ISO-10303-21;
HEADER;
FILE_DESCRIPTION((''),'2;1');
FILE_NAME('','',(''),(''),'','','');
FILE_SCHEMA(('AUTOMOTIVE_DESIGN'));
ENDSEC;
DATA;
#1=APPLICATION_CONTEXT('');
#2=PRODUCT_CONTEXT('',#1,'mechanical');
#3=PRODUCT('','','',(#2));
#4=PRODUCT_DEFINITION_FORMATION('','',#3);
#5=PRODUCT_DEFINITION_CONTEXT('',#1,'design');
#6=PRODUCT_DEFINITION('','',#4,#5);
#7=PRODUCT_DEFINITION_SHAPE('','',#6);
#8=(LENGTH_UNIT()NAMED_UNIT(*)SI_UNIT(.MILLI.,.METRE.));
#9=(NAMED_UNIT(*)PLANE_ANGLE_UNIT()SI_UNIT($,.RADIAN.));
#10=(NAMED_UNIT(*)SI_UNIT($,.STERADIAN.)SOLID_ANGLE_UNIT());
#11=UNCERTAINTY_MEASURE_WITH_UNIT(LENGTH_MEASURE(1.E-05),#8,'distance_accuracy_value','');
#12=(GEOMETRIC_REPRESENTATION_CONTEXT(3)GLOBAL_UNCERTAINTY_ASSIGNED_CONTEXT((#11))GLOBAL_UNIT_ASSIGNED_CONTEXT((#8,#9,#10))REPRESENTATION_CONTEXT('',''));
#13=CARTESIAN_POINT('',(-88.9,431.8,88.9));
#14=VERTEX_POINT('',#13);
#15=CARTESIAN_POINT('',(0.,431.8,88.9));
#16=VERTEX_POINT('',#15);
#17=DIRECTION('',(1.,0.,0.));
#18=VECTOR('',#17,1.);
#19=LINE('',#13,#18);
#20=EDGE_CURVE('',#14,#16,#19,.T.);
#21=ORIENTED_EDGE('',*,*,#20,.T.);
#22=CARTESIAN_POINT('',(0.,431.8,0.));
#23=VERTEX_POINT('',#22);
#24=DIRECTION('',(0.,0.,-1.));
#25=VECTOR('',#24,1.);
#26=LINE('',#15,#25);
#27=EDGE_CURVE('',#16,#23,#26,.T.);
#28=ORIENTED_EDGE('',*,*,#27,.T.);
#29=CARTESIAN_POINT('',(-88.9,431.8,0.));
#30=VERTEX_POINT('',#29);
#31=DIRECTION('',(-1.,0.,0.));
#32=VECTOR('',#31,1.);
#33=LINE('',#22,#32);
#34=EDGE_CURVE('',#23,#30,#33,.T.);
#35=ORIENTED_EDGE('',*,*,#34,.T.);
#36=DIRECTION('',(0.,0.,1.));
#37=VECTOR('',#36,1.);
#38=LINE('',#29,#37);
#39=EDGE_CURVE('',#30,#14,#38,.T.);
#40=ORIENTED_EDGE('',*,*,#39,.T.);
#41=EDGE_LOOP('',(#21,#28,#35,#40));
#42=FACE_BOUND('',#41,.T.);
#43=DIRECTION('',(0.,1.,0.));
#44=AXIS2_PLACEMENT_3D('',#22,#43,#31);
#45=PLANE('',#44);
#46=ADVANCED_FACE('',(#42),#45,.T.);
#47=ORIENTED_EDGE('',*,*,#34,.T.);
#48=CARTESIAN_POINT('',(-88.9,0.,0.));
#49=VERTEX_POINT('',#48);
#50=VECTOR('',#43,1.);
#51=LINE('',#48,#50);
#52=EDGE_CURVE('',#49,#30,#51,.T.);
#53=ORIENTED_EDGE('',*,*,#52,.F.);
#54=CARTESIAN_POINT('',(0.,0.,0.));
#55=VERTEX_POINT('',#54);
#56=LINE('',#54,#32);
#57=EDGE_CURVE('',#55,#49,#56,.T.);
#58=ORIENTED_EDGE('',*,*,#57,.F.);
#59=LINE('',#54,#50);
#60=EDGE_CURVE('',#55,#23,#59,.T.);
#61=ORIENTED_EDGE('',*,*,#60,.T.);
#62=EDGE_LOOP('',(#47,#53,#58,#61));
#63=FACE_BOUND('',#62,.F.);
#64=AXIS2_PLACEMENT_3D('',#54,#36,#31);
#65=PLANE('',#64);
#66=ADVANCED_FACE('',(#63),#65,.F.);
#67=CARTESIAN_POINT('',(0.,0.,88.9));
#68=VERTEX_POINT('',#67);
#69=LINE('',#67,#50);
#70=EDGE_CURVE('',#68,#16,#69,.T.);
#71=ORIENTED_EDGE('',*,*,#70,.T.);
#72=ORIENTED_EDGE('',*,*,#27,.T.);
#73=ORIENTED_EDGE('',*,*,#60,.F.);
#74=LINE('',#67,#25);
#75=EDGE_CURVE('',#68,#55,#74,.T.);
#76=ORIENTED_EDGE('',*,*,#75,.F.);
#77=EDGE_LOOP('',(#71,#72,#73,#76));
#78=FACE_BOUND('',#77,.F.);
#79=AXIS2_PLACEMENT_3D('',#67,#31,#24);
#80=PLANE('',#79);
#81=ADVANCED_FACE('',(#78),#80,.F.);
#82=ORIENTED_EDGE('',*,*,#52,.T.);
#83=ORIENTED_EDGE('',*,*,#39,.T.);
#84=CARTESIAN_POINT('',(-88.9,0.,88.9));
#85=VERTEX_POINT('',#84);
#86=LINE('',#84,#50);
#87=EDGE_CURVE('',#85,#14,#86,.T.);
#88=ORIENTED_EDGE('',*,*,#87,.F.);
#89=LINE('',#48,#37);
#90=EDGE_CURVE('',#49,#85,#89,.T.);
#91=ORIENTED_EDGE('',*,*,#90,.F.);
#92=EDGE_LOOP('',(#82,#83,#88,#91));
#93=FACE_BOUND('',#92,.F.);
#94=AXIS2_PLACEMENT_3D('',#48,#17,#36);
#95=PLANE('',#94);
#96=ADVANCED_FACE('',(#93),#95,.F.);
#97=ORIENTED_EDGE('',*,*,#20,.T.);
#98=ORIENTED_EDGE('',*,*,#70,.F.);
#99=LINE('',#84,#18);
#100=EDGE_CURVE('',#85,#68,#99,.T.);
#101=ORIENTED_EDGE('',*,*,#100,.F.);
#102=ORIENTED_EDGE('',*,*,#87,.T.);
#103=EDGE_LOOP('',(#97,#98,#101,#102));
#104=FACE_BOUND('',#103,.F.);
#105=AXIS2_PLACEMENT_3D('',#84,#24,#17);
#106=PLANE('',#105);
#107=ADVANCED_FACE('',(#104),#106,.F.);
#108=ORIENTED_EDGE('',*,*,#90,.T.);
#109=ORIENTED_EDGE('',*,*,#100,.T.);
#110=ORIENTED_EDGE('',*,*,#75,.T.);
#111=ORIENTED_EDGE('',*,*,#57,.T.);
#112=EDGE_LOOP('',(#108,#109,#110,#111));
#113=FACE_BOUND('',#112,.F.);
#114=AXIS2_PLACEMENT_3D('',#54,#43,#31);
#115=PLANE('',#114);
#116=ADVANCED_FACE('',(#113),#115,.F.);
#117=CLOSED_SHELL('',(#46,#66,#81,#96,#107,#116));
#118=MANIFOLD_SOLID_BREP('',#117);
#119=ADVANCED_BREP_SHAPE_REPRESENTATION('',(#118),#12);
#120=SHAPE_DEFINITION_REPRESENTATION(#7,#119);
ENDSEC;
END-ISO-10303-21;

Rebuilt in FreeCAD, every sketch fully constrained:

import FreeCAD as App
import Part
import Sketcher
from FreeCAD import Vector
Q = App.Units.Quantity


def add_polygon(sketch, points):
    """Adds a closed chain of lines whose ends are joined by coincident constraints."""
    first, n = sketch.GeometryCount, len(points)
    for a, b in zip(points, points[1:] + points[:1]):
        sketch.addGeometry(Part.LineSegment(App.Vector(*a, 0), App.Vector(*b, 0)), False)
    for i in range(n):
        sketch.addConstraint(Sketcher.Constraint("Coincident", first + i, 2, first + (i + 1) % n, 1))

doc = App.newDocument("Part")
body = doc.addObject("PartDesign::Body", "Body")

sketch1 = body.newObject("Sketcher::SketchObject", "Sketch")
sketch1.AttachmentSupport = (doc.getObject("XZ_Plane"), [""])
sketch1.MapMode = "FlatFace"
add_polygon(sketch1, [(0, 88.9), (0, 0), (-88.9, 0), (-88.9, 88.9)])
sketch1.addConstraint([
    Sketcher.Constraint("Vertical", 0),
    Sketcher.Constraint("Horizontal", 1),
    Sketcher.Constraint("Vertical", 2),
    Sketcher.Constraint("Horizontal", 3),
    Sketcher.Constraint("Coincident", 0, 2, -1, 1),
    Sketcher.Constraint("Equal", 3, 0),
    Sketcher.Constraint("DistanceX", 1, 2, 1, 1, Q("3.5 in")),
])
pad1 = body.newObject("PartDesign::Pad", "Pad")
pad1.Profile = sketch1
pad1.Length = Q("17 in")
pad1.Reversed = True

doc.recompute()
